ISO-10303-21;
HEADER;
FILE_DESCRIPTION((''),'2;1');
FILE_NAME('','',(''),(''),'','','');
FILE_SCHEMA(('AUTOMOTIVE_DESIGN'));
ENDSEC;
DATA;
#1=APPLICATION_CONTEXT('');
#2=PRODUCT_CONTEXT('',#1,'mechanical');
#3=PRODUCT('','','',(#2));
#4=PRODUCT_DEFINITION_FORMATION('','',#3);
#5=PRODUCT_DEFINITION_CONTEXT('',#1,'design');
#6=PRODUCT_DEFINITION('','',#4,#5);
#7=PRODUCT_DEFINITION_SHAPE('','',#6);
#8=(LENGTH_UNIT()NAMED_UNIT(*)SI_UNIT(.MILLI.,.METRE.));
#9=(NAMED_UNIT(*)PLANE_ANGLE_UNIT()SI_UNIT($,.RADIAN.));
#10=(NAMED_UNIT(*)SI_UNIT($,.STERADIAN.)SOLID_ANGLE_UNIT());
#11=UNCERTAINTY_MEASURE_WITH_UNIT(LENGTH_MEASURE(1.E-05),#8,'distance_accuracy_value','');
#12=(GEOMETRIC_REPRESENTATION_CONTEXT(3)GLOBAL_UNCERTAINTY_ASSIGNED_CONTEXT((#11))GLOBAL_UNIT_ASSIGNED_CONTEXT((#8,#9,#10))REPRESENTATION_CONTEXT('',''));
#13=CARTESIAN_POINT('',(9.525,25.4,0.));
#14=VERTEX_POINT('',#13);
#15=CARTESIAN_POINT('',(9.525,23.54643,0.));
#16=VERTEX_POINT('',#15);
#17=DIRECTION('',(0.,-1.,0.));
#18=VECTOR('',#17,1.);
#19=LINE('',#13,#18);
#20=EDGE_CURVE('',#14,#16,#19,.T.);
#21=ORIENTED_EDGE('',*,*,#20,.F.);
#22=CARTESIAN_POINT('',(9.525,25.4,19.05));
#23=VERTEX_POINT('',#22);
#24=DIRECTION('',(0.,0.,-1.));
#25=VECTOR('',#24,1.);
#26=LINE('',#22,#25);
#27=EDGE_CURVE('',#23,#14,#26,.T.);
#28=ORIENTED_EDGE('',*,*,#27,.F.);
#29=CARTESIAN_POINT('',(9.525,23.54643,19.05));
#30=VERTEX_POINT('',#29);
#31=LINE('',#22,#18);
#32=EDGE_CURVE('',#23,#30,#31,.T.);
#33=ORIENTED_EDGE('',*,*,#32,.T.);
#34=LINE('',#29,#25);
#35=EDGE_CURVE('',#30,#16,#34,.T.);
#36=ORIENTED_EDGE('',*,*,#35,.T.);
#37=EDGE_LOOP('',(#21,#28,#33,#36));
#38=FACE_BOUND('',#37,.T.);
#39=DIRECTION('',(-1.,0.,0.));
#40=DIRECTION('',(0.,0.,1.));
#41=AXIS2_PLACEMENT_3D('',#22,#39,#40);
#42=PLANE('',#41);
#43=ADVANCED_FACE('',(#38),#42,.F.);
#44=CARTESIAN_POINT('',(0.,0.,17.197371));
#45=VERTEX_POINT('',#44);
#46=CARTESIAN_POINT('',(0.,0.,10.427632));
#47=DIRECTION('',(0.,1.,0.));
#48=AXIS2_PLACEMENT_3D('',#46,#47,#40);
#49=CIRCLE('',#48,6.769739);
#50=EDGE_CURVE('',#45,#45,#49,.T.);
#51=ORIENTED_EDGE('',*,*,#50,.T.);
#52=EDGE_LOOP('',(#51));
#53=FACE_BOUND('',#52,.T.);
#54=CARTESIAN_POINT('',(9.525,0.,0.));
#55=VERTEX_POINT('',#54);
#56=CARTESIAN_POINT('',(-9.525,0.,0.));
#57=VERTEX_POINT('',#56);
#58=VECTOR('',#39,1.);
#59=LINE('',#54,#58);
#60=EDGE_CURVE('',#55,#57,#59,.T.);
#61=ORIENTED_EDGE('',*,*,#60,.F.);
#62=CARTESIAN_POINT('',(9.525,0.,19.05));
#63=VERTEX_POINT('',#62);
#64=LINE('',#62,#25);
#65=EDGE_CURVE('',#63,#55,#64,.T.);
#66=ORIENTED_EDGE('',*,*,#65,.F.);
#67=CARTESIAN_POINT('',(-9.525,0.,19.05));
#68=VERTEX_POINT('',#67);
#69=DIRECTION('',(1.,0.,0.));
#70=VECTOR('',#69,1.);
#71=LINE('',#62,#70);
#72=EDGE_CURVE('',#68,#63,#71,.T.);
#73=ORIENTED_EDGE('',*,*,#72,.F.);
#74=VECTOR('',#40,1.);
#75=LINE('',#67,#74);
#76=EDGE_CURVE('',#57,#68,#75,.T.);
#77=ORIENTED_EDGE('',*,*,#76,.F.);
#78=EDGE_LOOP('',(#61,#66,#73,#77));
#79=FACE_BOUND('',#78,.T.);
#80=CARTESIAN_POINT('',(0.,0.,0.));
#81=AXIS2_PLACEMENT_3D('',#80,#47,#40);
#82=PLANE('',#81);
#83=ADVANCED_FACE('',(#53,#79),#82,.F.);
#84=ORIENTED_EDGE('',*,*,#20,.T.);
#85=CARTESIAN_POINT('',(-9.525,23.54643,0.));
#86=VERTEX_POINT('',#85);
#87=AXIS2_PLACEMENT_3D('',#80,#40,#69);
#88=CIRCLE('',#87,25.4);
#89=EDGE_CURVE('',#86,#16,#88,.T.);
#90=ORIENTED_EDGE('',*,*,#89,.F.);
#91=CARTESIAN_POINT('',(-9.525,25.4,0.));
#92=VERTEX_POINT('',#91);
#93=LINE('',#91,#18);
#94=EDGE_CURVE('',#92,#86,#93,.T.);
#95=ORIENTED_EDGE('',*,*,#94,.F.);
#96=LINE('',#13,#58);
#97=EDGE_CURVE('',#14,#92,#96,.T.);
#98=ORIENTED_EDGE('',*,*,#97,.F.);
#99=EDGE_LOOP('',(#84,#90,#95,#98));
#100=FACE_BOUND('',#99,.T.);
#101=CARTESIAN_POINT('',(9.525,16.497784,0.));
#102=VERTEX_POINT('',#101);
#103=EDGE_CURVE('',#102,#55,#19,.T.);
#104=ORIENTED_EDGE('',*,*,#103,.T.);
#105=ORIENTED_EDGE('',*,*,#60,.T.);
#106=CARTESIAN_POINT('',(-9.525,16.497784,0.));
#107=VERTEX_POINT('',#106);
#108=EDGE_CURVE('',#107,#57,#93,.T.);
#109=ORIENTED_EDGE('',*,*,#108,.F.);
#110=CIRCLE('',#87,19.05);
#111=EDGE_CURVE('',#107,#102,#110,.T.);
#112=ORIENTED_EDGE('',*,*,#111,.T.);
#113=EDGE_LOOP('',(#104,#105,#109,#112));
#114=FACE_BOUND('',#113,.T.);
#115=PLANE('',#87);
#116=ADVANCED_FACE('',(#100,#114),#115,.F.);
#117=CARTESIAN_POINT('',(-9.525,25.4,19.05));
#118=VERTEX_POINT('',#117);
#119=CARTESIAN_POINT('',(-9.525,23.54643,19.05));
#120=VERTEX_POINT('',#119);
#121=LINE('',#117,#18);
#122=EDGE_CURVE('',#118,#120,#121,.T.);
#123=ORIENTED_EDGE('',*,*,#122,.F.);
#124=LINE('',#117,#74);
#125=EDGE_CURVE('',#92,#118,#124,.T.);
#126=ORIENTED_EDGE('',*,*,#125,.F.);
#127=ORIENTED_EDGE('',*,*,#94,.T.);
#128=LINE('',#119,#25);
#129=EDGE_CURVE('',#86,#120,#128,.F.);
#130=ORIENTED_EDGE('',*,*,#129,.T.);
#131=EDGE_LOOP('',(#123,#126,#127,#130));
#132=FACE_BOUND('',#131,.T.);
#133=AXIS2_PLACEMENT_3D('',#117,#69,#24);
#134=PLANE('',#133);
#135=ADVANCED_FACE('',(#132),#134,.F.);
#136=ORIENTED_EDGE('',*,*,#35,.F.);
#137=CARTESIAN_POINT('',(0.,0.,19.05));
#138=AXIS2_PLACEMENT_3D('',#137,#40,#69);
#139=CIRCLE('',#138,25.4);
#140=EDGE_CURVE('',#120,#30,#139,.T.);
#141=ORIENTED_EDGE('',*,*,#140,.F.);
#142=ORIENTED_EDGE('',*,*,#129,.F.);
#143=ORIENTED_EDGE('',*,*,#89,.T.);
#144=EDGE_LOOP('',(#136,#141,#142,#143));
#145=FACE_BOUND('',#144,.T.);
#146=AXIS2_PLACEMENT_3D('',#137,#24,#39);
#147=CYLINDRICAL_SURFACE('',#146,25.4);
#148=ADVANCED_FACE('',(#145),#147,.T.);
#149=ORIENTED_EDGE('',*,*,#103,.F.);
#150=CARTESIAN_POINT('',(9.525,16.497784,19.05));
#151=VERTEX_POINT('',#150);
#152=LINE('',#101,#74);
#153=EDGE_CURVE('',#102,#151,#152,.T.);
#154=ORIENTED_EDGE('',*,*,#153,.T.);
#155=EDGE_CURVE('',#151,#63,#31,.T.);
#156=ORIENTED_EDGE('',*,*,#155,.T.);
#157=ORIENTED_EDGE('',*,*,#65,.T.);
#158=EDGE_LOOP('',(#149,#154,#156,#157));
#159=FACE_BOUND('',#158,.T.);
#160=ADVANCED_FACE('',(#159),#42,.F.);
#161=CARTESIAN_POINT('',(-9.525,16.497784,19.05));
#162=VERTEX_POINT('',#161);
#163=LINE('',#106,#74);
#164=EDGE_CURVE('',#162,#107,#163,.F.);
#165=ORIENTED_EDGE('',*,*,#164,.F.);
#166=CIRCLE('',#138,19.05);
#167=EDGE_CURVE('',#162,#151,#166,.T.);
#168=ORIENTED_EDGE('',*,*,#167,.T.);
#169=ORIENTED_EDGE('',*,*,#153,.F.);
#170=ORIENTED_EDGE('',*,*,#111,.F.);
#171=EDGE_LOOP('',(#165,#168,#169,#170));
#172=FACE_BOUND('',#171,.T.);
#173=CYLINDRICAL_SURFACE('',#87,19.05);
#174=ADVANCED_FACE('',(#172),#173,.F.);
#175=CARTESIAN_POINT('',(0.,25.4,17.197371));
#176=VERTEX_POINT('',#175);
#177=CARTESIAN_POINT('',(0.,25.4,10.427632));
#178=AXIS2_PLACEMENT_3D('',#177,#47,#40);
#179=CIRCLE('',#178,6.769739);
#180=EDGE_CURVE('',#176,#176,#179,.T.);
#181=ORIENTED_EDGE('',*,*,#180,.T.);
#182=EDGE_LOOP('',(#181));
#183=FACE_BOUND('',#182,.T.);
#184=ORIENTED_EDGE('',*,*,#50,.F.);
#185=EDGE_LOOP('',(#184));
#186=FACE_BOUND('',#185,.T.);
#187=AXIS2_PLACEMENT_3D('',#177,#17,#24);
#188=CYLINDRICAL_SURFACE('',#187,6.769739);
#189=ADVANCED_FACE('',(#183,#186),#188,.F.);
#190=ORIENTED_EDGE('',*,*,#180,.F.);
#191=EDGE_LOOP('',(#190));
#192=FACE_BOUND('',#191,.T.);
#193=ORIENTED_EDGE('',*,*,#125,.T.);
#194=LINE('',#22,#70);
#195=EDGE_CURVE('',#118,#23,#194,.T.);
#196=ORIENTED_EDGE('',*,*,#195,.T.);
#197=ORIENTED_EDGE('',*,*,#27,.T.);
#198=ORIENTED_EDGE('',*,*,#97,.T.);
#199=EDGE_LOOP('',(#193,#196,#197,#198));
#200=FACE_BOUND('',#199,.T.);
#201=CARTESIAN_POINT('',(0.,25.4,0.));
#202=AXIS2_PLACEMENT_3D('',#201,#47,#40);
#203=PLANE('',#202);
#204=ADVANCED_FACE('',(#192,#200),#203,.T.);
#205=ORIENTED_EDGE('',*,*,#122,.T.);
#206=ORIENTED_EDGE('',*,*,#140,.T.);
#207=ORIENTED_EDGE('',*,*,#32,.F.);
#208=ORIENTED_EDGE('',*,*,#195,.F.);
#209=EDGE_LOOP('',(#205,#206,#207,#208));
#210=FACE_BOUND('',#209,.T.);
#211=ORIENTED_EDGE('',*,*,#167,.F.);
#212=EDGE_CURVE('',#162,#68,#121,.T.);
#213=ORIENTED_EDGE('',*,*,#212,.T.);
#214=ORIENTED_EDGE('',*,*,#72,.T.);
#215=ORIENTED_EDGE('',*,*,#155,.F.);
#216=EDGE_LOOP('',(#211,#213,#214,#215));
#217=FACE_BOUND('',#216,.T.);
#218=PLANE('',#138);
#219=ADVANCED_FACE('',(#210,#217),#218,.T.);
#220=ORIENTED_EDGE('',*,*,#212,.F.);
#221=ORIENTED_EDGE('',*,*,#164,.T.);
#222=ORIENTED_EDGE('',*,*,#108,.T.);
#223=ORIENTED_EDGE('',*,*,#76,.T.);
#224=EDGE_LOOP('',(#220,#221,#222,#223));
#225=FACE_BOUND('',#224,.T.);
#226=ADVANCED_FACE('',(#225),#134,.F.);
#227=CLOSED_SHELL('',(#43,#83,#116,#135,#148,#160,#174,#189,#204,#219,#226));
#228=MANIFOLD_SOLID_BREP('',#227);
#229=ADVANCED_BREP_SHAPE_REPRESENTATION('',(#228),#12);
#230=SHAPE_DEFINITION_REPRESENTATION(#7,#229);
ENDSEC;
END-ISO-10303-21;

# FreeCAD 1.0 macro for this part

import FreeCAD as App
import Part
import Sketcher

V = App.Vector
Q = App.Units.Quantity


def add_polygon(sketch, points):
    """Adds a closed chain of lines whose ends are joined by coincident constraints."""
    first, n = sketch.GeometryCount, len(points)
    for a, b in zip(points, points[1:] + points[:1]):
        sketch.addGeometry(Part.LineSegment(App.Vector(*a, 0), App.Vector(*b, 0)), False)
    for i in range(n):
        sketch.addConstraint(Sketcher.Constraint("Coincident", first + i, 2, first + (i + 1) % n, 1))

doc = App.newDocument("Part")
body = doc.addObject("PartDesign::Body", "Body")

# Sketch on XY plane
sketch1 = body.newObject("Sketcher::SketchObject", "Sketch")
sketch1.AttachmentSupport = (doc.getObject("XY_Plane"), [""])
sketch1.MapMode = "FlatFace"
sketch1.addGeometry(Part.Circle(V(0, 0, 0), V(0, 0, 1), 25), False)
sketch1.addConstraint(Sketcher.Constraint("Coincident", 0, 3, -1, 1))
sketch1.addConstraint(Sketcher.Constraint("Diameter", 0, Q("2 in")))
pad1 = body.newObject("PartDesign::Pad", "Pad")
pad1.Profile = sketch1
pad1.Length = Q("0.75 in")

# Sketch on XY plane
sketch2 = body.newObject("Sketcher::SketchObject", "Sketch001")
sketch2.AttachmentSupport = (doc.getObject("XY_Plane"), [""])
sketch2.MapMode = "FlatFace"
sketch2.AttachmentOffset = App.Placement(V(0, 0, 0.75 * 25.4), App.Rotation())
sketch2.addGeometry(Part.Circle(V(0, 0, 0), V(0, 0, 1), 19), False)
sketch2.addConstraint(Sketcher.Constraint("Coincident", 0, 3, -1, 1))
sketch2.addConstraint(Sketcher.Constraint("Diameter", 0, Q("1.5 in")))
pocket1 = body.newObject("PartDesign::Pocket", "Pocket")
pocket1.Profile = sketch2
pocket1.Type = "ThroughAll"
pocket1.Midplane = True

# Sketch on XZ plane
sketch3 = body.newObject("Sketcher::SketchObject", "Sketch002")
sketch3.AttachmentSupport = (doc.getObject("XZ_Plane"), [""])
sketch3.MapMode = "FlatFace"
add_polygon(sketch3, [(-10, 0), (-10, 19), (10, 19), (10, 0)])  # lines 0-3
sketch3.addConstraint(Sketcher.Constraint("Vertical", 0))
sketch3.addConstraint(Sketcher.Constraint("Horizontal", 1))
sketch3.addConstraint(Sketcher.Constraint("Vertical", 2))
sketch3.addConstraint(Sketcher.Constraint("Horizontal", 3))
sketch3.addConstraint(Sketcher.Constraint("Symmetric", 2, 2, 3, 2, -1, 1))
sketch3.addConstraint(Sketcher.Constraint("Equal", 3, 0))
sketch3.addConstraint(Sketcher.Constraint("DistanceX", 1, 1, 1, 2, Q("0.75 in")))
pad2 = body.newObject("PartDesign::Pad", "Pad001")
pad2.Profile = sketch3
pad2.Length = Q("1 in")
pad2.Reversed = True

# Sketch on XZ plane
sketch4 = body.newObject("Sketcher::SketchObject", "Sketch003")
sketch4.AttachmentSupport = (doc.getObject("XZ_Plane"), [""])
sketch4.MapMode = "FlatFace"
sketch4.addGeometry(Part.Circle(V(0, 10, 0), V(0, 0, 1), 7), False)
sketch4.addConstraint(Sketcher.Constraint("PointOnObject", 0, 3, -2))
sketch4.addConstraint(Sketcher.Constraint("Diameter", 0, Q("13.539479 mm")))
sketch4.addConstraint(Sketcher.Constraint("DistanceY", -1, 1, 0, 3, Q("10.427632 mm")))
pocket2 = body.newObject("PartDesign::Pocket", "Pocket001")
pocket2.Profile = sketch4
pocket2.Type = "ThroughAll"

doc.recompute()
